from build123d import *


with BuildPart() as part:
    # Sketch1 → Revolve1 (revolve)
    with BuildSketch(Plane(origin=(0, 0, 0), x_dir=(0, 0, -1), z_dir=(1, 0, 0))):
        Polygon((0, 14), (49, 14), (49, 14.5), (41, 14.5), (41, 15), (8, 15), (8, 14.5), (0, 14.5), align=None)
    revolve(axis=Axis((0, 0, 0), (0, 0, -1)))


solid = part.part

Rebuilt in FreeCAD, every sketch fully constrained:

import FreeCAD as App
import Part
import Sketcher

V = App.Vector


def add_polygon(sketch, points):
    """Adds a closed chain of lines whose ends are joined by coincident constraints."""
    first, n = sketch.GeometryCount, len(points)
    for a, b in zip(points, points[1:] + points[:1]):
        sketch.addGeometry(Part.LineSegment(App.Vector(*a, 0), App.Vector(*b, 0)), False)
    for i in range(n):
        sketch.addConstraint(Sketcher.Constraint("Coincident", first + i, 2, first + (i + 1) % n, 1))

doc = App.newDocument("Part")
body = doc.addObject("PartDesign::Body", "Body")

sketch1 = body.newObject("Sketcher::SketchObject", "Sketch")
sketch1.AttachmentSupport = (doc.getObject("YZ_Plane"), [""])
sketch1.MapMode = "FlatFace"
add_polygon(sketch1, [(14, 0), (14, -49), (14.5, -49), (14.5, -41), (15, -41), (15, -8), (14.5, -8), (14.5, 0)])
sketch1.addConstraint([
    Sketcher.Constraint("Vertical", 0),
    Sketcher.Constraint("Horizontal", 1),
    Sketcher.Constraint("Vertical", 2),
    Sketcher.Constraint("Horizontal", 3),
    Sketcher.Constraint("Vertical", 4),
    Sketcher.Constraint("Horizontal", 5),
    Sketcher.Constraint("Vertical", 6),
    Sketcher.Constraint("Horizontal", 7),
    Sketcher.Constraint("PointOnObject", 6, 2, -1),
    Sketcher.Constraint("Vertical", 2, 2, 5, 2),
    Sketcher.Constraint("Equal", 1, 3),
    Sketcher.Constraint("Equal", 2, 6),
    Sketcher.Constraint("DistanceY", 0, 2, 0, 1, 49.0),
    Sketcher.Constraint("DistanceY", 2, 1, 2, 2, 8.0),
    Sketcher.Constraint("DistanceX", 1, 1, 1, 2, 0.5),
    Sketcher.Constraint("DistanceX", -1, 1, 0, 2, 14.0),
])
revolution = body.newObject("PartDesign::Revolution", "Revolution")
revolution.Profile = sketch1
revolution.ReferenceAxis = (sketch1, ["V_Axis"])
revolution.Angle = 360

doc.recompute()
